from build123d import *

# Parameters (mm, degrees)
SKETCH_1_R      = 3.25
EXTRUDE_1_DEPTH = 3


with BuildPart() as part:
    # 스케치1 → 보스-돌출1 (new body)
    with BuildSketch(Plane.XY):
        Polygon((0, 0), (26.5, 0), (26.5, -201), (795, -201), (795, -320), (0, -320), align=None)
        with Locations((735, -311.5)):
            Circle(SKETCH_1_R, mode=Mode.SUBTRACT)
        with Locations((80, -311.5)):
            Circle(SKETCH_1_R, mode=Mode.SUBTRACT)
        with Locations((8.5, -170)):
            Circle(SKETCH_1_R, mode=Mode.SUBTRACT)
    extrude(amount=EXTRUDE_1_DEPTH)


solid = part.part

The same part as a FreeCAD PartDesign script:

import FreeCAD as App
import Part
import Sketcher

V = App.Vector

doc = App.newDocument("Part")
body = doc.addObject("PartDesign::Body", "Body")

sketch1 = doc.addObject("Sketcher::SketchObject", "Sketch")
body.addObject(sketch1)
sketch1.AttachmentSupport = (doc.XY_Plane, [""])
sketch1.MapMode = "FlatFace"
sketch1.addGeometry([
    Part.LineSegment(V(26.5, 0, 0), V(0, 0, 0)),
    Part.LineSegment(V(0, 0, 0), V(0, -320, 0)),
    Part.LineSegment(V(0, -320, 0), V(795, -320, 0)),
    Part.LineSegment(V(795, -320, 0), V(795, -201, 0)),
    Part.LineSegment(V(795, -201, 0), V(26.5, -201, 0)),
    Part.LineSegment(V(26.5, -201, 0), V(26.5, 0, 0)),
    Part.Circle(V(735, -311.5, 0), V(0, 0, 1), 3.2),
    Part.Circle(V(80, -311.5, 0), V(0, 0, 1), 3.2),
    Part.Circle(V(8.5, -170, 0), V(0, 0, 1), 3.2),
], False)
sketch1.addConstraint([
    Sketcher.Constraint("Coincident", 0, 2, 1, 1),
    Sketcher.Constraint("Coincident", 1, 2, 2, 1),
    Sketcher.Constraint("Coincident", 2, 2, 3, 1),
    Sketcher.Constraint("Coincident", 3, 2, 4, 1),
    Sketcher.Constraint("Coincident", 4, 2, 5, 1),
    Sketcher.Constraint("Coincident", 5, 2, 0, 1),
    Sketcher.Constraint("Horizontal", 0),
    Sketcher.Constraint("Vertical", 1),
    Sketcher.Constraint("Horizontal", 2),
    Sketcher.Constraint("Vertical", 3),
    Sketcher.Constraint("Horizontal", 4),
    Sketcher.Constraint("Vertical", 5),
    Sketcher.Constraint("Coincident", 0, 2, -1, 1),
    Sketcher.Constraint("Equal", 6, 7),
    Sketcher.Constraint("Equal", 7, 8),
    Sketcher.Constraint("Horizontal", 6, 3, 7, 3),
    Sketcher.Constraint("Diameter", 6, 6.5),
    Sketcher.Constraint("DistanceX", 2, 1, 2, 2, 795.0),
    Sketcher.Constraint("DistanceY", 1, 2, 1, 1, 320.0),
    Sketcher.Constraint("DistanceY", 3, 1, 3, 2, 119.0),
    Sketcher.Constraint("DistanceX", 0, 2, 0, 1, 26.5),
    Sketcher.Constraint("DistanceX", -1, 1, 6, 3, 735.0),
    Sketcher.Constraint("DistanceX", -1, 1, 7, 3, 80.0),
    Sketcher.Constraint("DistanceY", 8, 3, -1, 1, 170.0),
    Sketcher.Constraint("DistanceX", 8, 3, 4, 2, 18.0),
    Sketcher.Constraint("DistanceY", 6, 3, -1, 1, 311.5),
])
pad1 = doc.addObject("PartDesign::Pad", "Pad")
body.addObject(pad1)
pad1.Profile = sketch1
pad1.Length = 3

doc.recompute()
